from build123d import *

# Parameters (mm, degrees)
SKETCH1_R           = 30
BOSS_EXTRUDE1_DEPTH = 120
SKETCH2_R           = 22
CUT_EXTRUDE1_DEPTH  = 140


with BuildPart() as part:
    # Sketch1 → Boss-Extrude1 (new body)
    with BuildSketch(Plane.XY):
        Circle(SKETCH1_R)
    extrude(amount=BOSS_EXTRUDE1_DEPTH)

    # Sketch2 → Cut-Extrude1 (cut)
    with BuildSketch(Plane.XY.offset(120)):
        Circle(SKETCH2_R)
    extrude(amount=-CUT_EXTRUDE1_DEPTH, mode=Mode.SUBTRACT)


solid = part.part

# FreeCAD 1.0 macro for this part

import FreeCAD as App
import Part
import Sketcher

V = App.Vector

doc = App.newDocument("Part")
body = doc.addObject("PartDesign::Body", "Body")

# Sketch on XY plane
sketch1 = body.newObject("Sketcher::SketchObject", "Sketch")
sketch1.AttachmentSupport = (doc.getObject("XY_Plane"), [""])
sketch1.MapMode = "FlatFace"
sketch1.addGeometry(Part.Circle(V(0, 0, 0), V(0, 0, 1), 30), False)
sketch1.addConstraint(Sketcher.Constraint("Coincident", 0, 3, -1, 1))
sketch1.addConstraint(Sketcher.Constraint("Diameter", 0, 60.0))
pad1 = body.newObject("PartDesign::Pad", "Pad")
pad1.Profile = sketch1
pad1.Length = 120

# Sketch on XY plane
sketch2 = body.newObject("Sketcher::SketchObject", "Sketch001")
sketch2.AttachmentSupport = (doc.getObject("XY_Plane"), [""])
sketch2.MapMode = "FlatFace"
sketch2.AttachmentOffset = App.Placement(V(0, 0, 120), App.Rotation())
sketch2.addGeometry(Part.Circle(V(0, 0, 0), V(0, 0, 1), 22), False)
sketch2.addConstraint(Sketcher.Constraint("Coincident", 0, 3, -1, 1))
sketch2.addConstraint(Sketcher.Constraint("Diameter", 0, 44.0))
pocket1 = body.newObject("PartDesign::Pocket", "Pocket")
pocket1.Profile = sketch2
pocket1.Length = 140

doc.recompute()
